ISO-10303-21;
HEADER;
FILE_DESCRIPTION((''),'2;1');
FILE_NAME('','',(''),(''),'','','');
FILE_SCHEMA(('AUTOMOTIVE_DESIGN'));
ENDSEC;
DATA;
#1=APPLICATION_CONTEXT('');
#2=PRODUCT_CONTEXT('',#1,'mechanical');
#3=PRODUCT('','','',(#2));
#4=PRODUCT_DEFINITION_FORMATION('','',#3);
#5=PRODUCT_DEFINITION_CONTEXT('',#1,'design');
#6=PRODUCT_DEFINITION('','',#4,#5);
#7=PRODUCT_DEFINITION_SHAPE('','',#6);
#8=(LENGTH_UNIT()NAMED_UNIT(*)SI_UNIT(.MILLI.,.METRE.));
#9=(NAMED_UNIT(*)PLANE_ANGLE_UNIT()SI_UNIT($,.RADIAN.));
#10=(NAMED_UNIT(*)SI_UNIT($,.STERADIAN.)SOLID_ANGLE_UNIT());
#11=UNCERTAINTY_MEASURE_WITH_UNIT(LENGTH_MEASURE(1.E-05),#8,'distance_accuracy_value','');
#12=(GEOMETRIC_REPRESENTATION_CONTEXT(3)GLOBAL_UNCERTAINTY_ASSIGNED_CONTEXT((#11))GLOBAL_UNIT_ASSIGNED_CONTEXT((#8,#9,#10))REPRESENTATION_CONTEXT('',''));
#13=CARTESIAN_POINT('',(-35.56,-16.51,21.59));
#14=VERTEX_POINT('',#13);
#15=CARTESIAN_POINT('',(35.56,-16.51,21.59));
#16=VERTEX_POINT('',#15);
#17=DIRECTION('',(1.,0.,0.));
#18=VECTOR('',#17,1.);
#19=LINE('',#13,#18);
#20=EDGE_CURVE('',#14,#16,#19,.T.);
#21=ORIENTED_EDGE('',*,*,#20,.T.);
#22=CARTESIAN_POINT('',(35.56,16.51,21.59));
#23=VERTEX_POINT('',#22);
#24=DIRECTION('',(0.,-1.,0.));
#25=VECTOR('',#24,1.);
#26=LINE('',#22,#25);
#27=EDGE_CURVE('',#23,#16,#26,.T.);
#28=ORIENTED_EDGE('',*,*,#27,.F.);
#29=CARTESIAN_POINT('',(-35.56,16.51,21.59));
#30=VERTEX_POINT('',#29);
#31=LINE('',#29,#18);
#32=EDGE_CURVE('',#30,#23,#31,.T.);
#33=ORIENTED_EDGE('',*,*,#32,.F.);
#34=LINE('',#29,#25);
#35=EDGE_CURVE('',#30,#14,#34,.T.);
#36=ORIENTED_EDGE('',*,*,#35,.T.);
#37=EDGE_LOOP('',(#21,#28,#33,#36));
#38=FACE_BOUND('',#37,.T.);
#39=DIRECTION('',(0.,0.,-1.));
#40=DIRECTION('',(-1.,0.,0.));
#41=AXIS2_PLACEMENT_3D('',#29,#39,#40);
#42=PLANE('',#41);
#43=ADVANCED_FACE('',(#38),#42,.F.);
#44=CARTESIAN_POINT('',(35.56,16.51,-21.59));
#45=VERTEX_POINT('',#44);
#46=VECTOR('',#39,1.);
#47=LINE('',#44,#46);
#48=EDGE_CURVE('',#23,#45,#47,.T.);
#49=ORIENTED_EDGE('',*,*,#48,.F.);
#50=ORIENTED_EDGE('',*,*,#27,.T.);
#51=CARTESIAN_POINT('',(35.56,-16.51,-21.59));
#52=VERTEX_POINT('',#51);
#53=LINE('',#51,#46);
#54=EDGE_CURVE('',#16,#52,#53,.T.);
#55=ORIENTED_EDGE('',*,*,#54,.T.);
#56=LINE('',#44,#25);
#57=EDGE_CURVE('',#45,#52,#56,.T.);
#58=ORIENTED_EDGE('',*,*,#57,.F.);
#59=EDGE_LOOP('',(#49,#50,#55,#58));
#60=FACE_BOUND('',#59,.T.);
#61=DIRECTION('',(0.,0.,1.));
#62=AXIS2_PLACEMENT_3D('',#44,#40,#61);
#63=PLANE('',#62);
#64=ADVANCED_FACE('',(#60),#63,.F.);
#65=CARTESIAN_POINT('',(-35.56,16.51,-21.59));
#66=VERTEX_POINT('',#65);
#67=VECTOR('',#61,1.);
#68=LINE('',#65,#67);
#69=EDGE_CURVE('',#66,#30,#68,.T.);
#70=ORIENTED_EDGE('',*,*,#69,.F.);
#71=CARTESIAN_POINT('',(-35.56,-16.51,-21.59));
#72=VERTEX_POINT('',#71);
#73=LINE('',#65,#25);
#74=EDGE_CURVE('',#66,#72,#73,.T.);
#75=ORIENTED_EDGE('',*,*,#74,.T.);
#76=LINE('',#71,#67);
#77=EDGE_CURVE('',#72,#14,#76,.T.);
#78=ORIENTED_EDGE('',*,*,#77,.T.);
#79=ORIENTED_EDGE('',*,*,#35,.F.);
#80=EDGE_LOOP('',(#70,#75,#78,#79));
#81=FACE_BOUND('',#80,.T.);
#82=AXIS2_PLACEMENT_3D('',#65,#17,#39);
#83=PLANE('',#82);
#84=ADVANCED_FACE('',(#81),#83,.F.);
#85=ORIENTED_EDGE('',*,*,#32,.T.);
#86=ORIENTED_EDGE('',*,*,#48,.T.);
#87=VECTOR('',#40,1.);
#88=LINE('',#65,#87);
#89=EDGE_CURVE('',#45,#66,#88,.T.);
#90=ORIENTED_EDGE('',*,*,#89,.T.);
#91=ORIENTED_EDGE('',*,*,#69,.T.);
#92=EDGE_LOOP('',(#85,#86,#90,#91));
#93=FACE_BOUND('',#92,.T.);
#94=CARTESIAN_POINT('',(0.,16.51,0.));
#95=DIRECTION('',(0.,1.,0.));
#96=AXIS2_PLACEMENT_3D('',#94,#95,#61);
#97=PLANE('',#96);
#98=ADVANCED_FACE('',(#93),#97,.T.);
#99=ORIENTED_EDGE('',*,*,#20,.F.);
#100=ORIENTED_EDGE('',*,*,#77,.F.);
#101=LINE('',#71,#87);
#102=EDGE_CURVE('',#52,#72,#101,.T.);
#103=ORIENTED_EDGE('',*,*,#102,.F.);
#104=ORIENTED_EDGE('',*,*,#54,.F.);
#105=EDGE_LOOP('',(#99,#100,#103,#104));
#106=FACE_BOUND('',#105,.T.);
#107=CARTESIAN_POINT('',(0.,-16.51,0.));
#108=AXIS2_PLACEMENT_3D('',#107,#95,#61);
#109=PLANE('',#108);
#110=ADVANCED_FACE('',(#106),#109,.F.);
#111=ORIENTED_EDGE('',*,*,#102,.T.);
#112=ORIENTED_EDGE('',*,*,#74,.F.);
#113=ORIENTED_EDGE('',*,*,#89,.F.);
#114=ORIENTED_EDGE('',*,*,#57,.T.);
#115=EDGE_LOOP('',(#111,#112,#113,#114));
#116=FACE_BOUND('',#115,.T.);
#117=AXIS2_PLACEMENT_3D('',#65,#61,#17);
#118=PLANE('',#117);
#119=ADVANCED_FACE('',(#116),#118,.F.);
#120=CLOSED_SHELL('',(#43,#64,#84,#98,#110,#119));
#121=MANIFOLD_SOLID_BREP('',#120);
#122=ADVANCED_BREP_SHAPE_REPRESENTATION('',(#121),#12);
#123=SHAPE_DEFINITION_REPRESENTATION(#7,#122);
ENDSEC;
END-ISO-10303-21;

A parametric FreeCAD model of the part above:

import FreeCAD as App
import Part
import Sketcher
Q = App.Units.Quantity

doc = App.newDocument("Part")
body = doc.addObject("PartDesign::Body", "Body")

# Sketch on XZ plane
sketch1 = body.newObject("Sketcher::SketchObject", "Sketch")
sketch1.AttachmentSupport = (doc.getObject("XZ_Plane"), [""])
sketch1.MapMode = "FlatFace"
sketch1.addGeometry([
    Part.LineSegment(App.Vector(-36, -22, 0), App.Vector(-36, 22, 0)),
    Part.LineSegment(App.Vector(-36, 22, 0), App.Vector(36, 22, 0)),
    Part.LineSegment(App.Vector(36, 22, 0), App.Vector(36, -22, 0)),
    Part.LineSegment(App.Vector(36, -22, 0), App.Vector(-36, -22, 0)),
], False)
sketch1.addConstraint([
    Sketcher.Constraint("Coincident", 0, 2, 1, 1),
    Sketcher.Constraint("Coincident", 1, 2, 2, 1),
    Sketcher.Constraint("Coincident", 2, 2, 3, 1),
    Sketcher.Constraint("Coincident", 3, 2, 0, 1),
    Sketcher.Constraint("Vertical", 0),
    Sketcher.Constraint("Horizontal", 1),
    Sketcher.Constraint("Vertical", 2),
    Sketcher.Constraint("Horizontal", 3),
    Sketcher.Constraint("Symmetric", 0, 2, 2, 2, -1, 1),
    Sketcher.Constraint("DistanceX", 1, 1, 1, 2, Q("2.8 in")),
    Sketcher.Constraint("DistanceY", 0, 1, 0, 2, Q("1.7 in")),
])
pad1 = body.newObject("PartDesign::Pad", "Pad")
pad1.Profile = sketch1
pad1.Length = Q("1.3 in")
pad1.Midplane = True

doc.recompute()
